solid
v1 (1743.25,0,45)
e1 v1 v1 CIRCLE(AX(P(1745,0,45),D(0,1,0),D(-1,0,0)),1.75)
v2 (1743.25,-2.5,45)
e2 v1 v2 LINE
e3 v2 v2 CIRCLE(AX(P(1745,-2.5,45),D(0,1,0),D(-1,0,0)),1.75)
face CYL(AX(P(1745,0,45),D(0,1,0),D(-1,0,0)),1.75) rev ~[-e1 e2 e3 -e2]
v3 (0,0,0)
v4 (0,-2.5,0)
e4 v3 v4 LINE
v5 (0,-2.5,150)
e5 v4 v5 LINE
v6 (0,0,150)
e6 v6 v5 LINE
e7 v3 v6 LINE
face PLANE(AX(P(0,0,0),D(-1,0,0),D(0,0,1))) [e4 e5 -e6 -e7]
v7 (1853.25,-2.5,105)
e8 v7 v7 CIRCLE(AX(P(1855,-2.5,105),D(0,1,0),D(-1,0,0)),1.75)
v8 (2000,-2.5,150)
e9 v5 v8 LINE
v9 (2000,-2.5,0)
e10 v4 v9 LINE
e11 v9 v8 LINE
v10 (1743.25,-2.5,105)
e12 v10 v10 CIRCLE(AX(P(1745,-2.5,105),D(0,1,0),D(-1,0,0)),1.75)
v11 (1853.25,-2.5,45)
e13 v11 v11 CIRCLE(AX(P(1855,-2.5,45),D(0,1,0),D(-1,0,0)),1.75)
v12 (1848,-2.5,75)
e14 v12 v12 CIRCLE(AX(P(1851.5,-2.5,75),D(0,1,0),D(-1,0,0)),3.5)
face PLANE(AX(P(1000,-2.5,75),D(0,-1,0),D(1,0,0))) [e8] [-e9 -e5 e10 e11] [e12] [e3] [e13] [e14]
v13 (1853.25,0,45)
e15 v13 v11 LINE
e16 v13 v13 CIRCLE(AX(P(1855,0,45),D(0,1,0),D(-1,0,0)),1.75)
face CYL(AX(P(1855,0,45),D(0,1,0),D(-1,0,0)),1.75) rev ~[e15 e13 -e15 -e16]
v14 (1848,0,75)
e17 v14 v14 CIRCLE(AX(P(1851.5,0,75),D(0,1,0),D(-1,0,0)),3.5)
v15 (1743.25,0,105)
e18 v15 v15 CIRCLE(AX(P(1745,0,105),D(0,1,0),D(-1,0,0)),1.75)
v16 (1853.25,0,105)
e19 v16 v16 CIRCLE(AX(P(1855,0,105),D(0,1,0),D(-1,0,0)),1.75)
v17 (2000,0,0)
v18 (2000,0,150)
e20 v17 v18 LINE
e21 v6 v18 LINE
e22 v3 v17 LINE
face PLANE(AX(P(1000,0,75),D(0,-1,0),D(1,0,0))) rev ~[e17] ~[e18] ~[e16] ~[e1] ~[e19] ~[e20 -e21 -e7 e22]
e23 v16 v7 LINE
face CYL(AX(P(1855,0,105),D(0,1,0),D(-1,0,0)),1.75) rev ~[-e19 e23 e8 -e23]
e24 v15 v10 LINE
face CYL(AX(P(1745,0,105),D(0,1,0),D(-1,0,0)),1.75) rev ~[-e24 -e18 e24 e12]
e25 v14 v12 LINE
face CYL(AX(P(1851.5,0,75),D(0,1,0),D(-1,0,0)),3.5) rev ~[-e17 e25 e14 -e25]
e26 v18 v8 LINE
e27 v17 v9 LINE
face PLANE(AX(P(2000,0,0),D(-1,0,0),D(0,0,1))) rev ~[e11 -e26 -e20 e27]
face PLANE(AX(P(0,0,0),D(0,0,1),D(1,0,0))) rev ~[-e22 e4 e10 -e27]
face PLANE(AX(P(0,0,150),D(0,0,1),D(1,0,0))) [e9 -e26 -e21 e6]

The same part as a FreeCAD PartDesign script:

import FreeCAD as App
import Part
import Sketcher
from FreeCAD import Vector
Q = App.Units.Quantity

doc = App.newDocument("Part")
params = doc.addObject("Spreadsheet::Sheet", "Params")
for row, (alias, value) in enumerate([
    ("sketch1_width", "2000 mm"),
    ("sketch1_height", "150 mm"),
    ("pad1_length", "2.5 mm"),
    ("sketch2_diameter", "7 mm"),
    ("sketch2_diameter2", "3.5 mm"),
], start=1):
    params.set(f"A{row}", alias)
    params.set(f"B{row}", "=" + value)
    params.setAlias(f"B{row}", alias)

body = doc.addObject("PartDesign::Body", "Body")

# Sketch on XZ plane
sketch1 = doc.addObject("Sketcher::SketchObject", "Sketch")
body.addObject(sketch1)
sketch1.AttachmentSupport = (doc.XZ_Plane, [""])
sketch1.MapMode = "FlatFace"
sketch1.addGeometry([
    Part.LineSegment(Vector(0, 150, 0), Vector(0, 0, 0)),
    Part.LineSegment(Vector(0, 0, 0), Vector(2000, 0, 0)),
    Part.LineSegment(Vector(2000, 0, 0), Vector(2000, 150, 0)),
    Part.LineSegment(Vector(2000, 150, 0), Vector(0, 150, 0)),
], False)
sketch1.addConstraint([
    Sketcher.Constraint("Coincident", 0, 2, 1, 1),
    Sketcher.Constraint("Coincident", 1, 2, 2, 1),
    Sketcher.Constraint("Coincident", 2, 2, 3, 1),
    Sketcher.Constraint("Coincident", 3, 2, 0, 1),
    Sketcher.Constraint("Vertical", 0),
    Sketcher.Constraint("Horizontal", 1),
    Sketcher.Constraint("Vertical", 2),
    Sketcher.Constraint("Horizontal", 3),
    Sketcher.Constraint("Coincident", 0, 2, -1, 1),
    Sketcher.Constraint("DistanceX", 1, 1, 1, 2, Q("2000 mm")),
    Sketcher.Constraint("DistanceY", 0, 2, 0, 1, Q("150 mm")),
])
sketch1.setExpression("Constraints[9]", "Params.sketch1_width")
sketch1.setExpression("Constraints[10]", "Params.sketch1_height")
pad1 = doc.addObject("PartDesign::Pad", "Pad")
body.addObject(pad1)
pad1.Profile = sketch1
pad1.setExpression("Length", "Params.pad1_length")

# Sketch on XZ plane
sketch2 = doc.addObject("Sketcher::SketchObject", "Sketch001")
body.addObject(sketch2)
sketch2.AttachmentSupport = (doc.XZ_Plane, [""])
sketch2.MapMode = "FlatFace"
sketch2.addGeometry([
    Part.Circle(Vector(1855, 105, 0), Vector(0, 0, 1), 1.75),  # 0
    Part.Circle(Vector(1745, 105, 0), Vector(0, 0, 1), 1.75),  # 1
    Part.Circle(Vector(1745, 45, 0), Vector(0, 0, 1), 1.75),  # 2
    Part.Circle(Vector(1855, 45, 0), Vector(0, 0, 1), 1.75),  # 3
    Part.Circle(Vector(1851.5, 75, 0), Vector(0, 0, 1), 3.5),  # 4
], False)
sketch2.addConstraint([
    Sketcher.Constraint("Equal", 0, 1),
    Sketcher.Constraint("Equal", 1, 2),
    Sketcher.Constraint("Equal", 2, 3),
    Sketcher.Constraint("Horizontal", 0, 3, 1, 3),
    Sketcher.Constraint("Horizontal", 2, 3, 3, 3),
    Sketcher.Constraint("Vertical", 1, 3, 2, 3),
    Sketcher.Constraint("Vertical", 0, 3, 3, 3),
    Sketcher.Constraint("Diameter", 4, Q("7 mm")),
    Sketcher.Constraint("Diameter", 0, Q("3.5 mm")),
    Sketcher.Constraint("DistanceX", -1, 1, 0, 3, Q("1855 mm")),
    Sketcher.Constraint("DistanceY", -1, 1, 0, 3, Q("105 mm")),
    Sketcher.Constraint("DistanceX", -1, 1, 1, 3, Q("1745 mm")),
    Sketcher.Constraint("DistanceY", -1, 1, 2, 3, Q("45 mm")),
    Sketcher.Constraint("DistanceY", -1, 1, 4, 3, Q("75 mm")),
    Sketcher.Constraint("DistanceX", -1, 1, 4, 3, Q("1851.5 mm")),
])
sketch2.setExpression("Constraints[7]", "Params.sketch2_diameter")
sketch2.setExpression("Constraints[8]", "Params.sketch2_diameter2")
pocket1 = doc.addObject("PartDesign::Pocket", "Pocket")
body.addObject(pocket1)
pocket1.Profile = sketch2
pocket1.Type = "ThroughAll"
pocket1.Reversed = True

doc.recompute()
